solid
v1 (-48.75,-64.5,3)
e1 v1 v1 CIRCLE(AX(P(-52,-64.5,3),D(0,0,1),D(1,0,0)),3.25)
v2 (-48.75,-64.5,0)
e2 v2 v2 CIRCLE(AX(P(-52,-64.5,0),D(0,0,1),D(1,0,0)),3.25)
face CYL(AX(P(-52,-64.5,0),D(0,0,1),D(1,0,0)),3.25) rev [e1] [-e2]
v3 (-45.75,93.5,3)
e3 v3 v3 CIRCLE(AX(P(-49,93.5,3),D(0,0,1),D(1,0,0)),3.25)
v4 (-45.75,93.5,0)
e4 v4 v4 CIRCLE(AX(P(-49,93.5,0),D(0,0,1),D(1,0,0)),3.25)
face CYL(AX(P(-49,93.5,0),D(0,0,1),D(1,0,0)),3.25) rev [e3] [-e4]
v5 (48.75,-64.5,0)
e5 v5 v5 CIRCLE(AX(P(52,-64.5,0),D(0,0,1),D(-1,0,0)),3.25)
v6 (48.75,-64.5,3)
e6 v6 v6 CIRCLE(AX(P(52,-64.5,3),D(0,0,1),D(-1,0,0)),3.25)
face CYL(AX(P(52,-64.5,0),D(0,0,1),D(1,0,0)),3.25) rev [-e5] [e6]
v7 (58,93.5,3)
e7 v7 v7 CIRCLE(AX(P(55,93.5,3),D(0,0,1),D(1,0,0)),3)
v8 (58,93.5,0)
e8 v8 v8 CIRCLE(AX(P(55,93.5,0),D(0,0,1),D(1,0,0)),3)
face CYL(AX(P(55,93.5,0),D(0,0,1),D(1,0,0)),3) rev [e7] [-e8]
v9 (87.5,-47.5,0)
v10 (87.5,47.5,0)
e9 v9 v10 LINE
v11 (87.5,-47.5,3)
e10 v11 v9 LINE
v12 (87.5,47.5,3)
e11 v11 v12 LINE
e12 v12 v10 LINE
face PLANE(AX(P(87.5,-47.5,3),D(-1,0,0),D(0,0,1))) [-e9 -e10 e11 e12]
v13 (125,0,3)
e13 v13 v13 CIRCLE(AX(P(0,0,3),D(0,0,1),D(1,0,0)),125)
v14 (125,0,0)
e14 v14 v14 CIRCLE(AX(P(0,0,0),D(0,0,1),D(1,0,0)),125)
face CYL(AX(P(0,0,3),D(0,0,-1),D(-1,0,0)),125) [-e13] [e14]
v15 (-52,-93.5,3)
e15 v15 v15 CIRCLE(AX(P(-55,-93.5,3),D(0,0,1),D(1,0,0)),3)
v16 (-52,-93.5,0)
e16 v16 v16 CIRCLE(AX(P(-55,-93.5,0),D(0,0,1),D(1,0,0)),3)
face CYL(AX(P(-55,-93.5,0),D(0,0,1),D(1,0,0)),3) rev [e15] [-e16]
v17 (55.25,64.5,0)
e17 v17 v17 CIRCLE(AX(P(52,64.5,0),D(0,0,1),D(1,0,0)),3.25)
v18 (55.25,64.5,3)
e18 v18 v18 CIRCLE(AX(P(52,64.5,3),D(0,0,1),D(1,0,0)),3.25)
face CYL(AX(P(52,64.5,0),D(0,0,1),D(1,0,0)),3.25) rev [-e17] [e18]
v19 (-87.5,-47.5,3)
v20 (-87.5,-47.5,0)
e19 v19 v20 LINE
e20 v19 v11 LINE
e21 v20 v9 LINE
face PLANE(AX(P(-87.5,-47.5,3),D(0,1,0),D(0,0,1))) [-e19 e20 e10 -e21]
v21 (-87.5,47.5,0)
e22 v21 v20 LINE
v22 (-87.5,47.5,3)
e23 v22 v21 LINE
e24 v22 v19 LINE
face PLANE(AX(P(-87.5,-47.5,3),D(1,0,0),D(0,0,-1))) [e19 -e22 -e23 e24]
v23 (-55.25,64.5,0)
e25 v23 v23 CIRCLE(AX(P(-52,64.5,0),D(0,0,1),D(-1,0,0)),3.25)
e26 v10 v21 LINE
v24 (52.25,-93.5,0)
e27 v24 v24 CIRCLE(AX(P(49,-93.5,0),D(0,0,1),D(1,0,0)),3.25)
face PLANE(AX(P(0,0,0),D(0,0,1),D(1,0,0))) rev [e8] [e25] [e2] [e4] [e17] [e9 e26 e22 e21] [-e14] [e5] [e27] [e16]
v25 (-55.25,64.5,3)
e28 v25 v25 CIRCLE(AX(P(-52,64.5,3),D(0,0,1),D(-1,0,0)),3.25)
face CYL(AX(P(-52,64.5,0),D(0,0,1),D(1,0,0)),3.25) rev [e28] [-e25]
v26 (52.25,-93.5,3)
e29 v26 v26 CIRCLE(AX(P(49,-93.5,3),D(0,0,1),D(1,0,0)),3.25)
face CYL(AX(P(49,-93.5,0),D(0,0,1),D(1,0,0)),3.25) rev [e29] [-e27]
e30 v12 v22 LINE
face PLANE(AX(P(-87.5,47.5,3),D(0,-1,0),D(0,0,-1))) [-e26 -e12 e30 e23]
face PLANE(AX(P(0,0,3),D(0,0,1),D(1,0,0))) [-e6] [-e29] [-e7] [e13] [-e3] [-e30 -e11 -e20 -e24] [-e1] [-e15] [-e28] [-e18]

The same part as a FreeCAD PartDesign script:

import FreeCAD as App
import Part
import Sketcher
from FreeCAD import Vector


def add_polygon(sketch, points):
    """Adds a closed chain of lines whose ends are joined by coincident constraints."""
    first, n = sketch.GeometryCount, len(points)
    for a, b in zip(points, points[1:] + points[:1]):
        sketch.addGeometry(Part.LineSegment(App.Vector(*a, 0), App.Vector(*b, 0)), False)
    for i in range(n):
        sketch.addConstraint(Sketcher.Constraint("Coincident", first + i, 2, first + (i + 1) % n, 1))

doc = App.newDocument("Part")
body = doc.addObject("PartDesign::Body", "Body")

# Sketch on XY plane
sketch1 = body.newObject("Sketcher::SketchObject", "Sketch")
sketch1.AttachmentSupport = (doc.getObject("XY_Plane"), [""])
sketch1.MapMode = "FlatFace"
sketch1.addGeometry(Part.Circle(Vector(0, 0, 0), Vector(0, 0, 1), 125), False)  # 0
add_polygon(sketch1, [(87.5, -47.5), (-87.5, -47.5), (-87.5, 47.5), (87.5, 47.5)])  # lines 1-4
sketch1.addConstraint([
    Sketcher.Constraint("Horizontal", 1),
    Sketcher.Constraint("Vertical", 2),
    Sketcher.Constraint("Horizontal", 3),
    Sketcher.Constraint("Vertical", 4),
    Sketcher.Constraint("Coincident", 0, 3, -1, 1),
    Sketcher.Constraint("Symmetric", 1, 2, 3, 2, -1, 1),
    Sketcher.Constraint("Diameter", 0, 250.0),
    Sketcher.Constraint("DistanceX", 1, 2, 1, 1, 175.0),
    Sketcher.Constraint("DistanceY", 2, 1, 2, 2, 95.0),
])
pad1 = body.newObject("PartDesign::Pad", "Pad")
pad1.Profile = sketch1
pad1.Length = 3

# Sketch on XY plane
sketch2 = body.newObject("Sketcher::SketchObject", "Sketch001")
sketch2.AttachmentSupport = (doc.getObject("XY_Plane"), [""])
sketch2.MapMode = "FlatFace"
sketch2.AttachmentOffset = App.Placement(Vector(0, 0, 3), App.Rotation())
sketch2.addGeometry([
    Part.Circle(Vector(-52, -64.5, 0), Vector(0, 0, 1), 3.25),  # 0
    Part.Circle(Vector(-55, -93.5, 0), Vector(0, 0, 1), 3),  # 1
    Part.Circle(Vector(52, 64.5, 0), Vector(0, 0, 1), 3.25),  # 2
    Part.Circle(Vector(55, 93.5, 0), Vector(0, 0, 1), 3),  # 3
    Part.Circle(Vector(52, -64.5, 0), Vector(0, 0, 1), 3.25),  # 4
    Part.Circle(Vector(-52, 64.5, 0), Vector(0, 0, 1), 3.25),  # 5
    Part.Circle(Vector(49, -93.5, 0), Vector(0, 0, 1), 3.25),  # 6
    Part.Circle(Vector(-49, 93.5, 0), Vector(0, 0, 1), 3.25),  # 7
], False)
sketch2.addConstraint([
    Sketcher.Constraint("Equal", 0, 2),
    Sketcher.Constraint("Equal", 1, 3),
    Sketcher.Constraint("Equal", 2, 4),
    Sketcher.Constraint("Equal", 4, 5),
    Sketcher.Constraint("Equal", 5, 6),
    Sketcher.Constraint("Equal", 6, 7),
    Sketcher.Constraint("Symmetric", 0, 3, 2, 3, -1, 1),
    Sketcher.Constraint("Symmetric", 1, 3, 3, 3, -1, 1),
    Sketcher.Constraint("Symmetric", 4, 3, 5, 3, -1, 1),
    Sketcher.Constraint("Symmetric", 6, 3, 7, 3, -1, 1),
    Sketcher.Constraint("Symmetric", 0, 3, 4, 3, -2),
    Sketcher.Constraint("Horizontal", 1, 3, 6, 3),
    Sketcher.Constraint("Diameter", 1, 6.0),
    Sketcher.Constraint("Diameter", 0, 6.5),
    Sketcher.Constraint("DistanceX", 0, 3, -1, 1, 52.0),
    Sketcher.Constraint("DistanceX", 1, 3, -1, 1, 55.0),
    Sketcher.Constraint("DistanceX", -1, 1, 6, 3, 49.0),
    Sketcher.Constraint("DistanceY", 1, 3, 0, 3, 29.0),
    Sketcher.Constraint("DistanceY", 0, 3, 2, 3, 129.0),
])
pocket1 = body.newObject("PartDesign::Pocket", "Pocket")
pocket1.Profile = sketch2
pocket1.Type = "ThroughAll"

doc.recompute()
